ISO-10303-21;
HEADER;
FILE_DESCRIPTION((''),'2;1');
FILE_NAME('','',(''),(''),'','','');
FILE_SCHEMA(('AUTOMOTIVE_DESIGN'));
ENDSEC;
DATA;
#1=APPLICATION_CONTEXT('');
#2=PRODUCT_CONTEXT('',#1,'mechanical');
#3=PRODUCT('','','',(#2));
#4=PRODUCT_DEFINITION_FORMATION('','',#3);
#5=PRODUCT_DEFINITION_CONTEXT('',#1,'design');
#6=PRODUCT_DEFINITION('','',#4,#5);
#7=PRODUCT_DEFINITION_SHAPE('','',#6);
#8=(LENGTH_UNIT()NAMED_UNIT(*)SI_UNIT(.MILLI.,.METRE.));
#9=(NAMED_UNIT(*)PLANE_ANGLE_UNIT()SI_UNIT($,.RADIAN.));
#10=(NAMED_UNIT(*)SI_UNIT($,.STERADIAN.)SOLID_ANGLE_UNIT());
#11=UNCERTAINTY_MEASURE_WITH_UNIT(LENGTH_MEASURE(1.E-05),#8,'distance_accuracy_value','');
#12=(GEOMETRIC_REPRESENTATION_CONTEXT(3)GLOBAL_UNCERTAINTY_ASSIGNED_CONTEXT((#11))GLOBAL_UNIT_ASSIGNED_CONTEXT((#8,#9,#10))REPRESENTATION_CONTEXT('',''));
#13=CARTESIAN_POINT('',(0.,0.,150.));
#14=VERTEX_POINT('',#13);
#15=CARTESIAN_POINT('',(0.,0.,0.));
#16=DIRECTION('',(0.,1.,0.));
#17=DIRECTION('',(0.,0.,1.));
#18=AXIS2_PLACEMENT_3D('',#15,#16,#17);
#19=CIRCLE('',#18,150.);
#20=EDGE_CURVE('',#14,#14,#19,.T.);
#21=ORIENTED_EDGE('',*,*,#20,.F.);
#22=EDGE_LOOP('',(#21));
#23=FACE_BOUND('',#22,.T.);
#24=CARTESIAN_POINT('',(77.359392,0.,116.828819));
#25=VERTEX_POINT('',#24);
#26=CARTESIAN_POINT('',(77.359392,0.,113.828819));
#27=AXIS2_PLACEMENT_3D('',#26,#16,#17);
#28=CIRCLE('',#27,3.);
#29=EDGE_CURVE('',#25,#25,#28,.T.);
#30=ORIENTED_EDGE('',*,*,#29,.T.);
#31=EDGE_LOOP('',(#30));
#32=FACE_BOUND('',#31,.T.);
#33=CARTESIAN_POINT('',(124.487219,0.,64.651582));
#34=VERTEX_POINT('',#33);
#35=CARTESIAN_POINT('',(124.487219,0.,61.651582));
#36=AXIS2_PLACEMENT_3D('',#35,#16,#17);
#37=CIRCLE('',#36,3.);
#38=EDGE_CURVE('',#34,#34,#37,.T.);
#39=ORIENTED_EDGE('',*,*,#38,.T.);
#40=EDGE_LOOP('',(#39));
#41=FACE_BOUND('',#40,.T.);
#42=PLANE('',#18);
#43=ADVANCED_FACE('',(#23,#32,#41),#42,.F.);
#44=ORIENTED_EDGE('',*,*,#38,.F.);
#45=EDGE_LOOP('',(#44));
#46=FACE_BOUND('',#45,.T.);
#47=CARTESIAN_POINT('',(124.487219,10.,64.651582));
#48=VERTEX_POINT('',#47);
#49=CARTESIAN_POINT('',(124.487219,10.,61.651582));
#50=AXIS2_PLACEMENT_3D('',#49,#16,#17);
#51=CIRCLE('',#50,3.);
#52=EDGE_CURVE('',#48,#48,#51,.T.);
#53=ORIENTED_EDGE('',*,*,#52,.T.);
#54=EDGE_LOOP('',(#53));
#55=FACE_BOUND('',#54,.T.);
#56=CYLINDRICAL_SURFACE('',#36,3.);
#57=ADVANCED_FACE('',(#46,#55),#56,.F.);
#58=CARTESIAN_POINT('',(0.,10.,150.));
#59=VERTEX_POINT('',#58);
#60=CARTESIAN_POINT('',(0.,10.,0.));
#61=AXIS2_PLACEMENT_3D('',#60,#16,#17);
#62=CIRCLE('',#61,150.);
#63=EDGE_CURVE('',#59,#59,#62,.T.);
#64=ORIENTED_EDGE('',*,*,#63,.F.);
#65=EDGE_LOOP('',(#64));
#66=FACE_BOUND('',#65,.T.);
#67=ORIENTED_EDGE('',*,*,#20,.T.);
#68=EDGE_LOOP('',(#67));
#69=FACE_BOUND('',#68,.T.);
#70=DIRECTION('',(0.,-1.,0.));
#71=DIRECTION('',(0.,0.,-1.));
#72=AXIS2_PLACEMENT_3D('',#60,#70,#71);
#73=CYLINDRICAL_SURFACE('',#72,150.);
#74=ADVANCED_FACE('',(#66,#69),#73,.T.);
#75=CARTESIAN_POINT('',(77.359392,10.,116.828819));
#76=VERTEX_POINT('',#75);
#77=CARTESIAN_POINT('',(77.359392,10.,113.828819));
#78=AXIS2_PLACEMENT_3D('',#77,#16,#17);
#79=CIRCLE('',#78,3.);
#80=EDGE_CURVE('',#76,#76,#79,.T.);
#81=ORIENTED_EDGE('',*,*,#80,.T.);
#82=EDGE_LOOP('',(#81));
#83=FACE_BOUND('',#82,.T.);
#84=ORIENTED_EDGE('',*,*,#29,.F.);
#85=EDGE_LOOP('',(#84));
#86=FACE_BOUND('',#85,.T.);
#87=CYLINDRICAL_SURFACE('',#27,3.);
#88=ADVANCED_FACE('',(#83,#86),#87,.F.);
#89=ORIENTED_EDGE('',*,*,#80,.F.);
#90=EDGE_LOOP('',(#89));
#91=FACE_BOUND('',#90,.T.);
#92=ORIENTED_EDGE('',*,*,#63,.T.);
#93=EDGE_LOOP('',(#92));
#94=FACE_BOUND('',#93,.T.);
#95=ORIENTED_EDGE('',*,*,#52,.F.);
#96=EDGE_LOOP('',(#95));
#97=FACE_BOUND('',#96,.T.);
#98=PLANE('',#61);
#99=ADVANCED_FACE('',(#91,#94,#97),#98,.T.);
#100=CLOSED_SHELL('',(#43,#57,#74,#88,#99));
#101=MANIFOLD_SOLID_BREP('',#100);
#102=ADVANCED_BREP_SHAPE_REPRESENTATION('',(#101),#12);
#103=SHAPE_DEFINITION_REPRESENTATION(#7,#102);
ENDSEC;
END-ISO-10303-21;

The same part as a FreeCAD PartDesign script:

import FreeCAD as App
import Part
import Sketcher

V = App.Vector

doc = App.newDocument("Part")
body = doc.addObject("PartDesign::Body", "Body")

sketch1 = doc.addObject("Sketcher::SketchObject", "Sketch")
body.addObject(sketch1)
sketch1.AttachmentSupport = (doc.XZ_Plane, [""])
sketch1.MapMode = "FlatFace"
sketch1.addGeometry(Part.Circle(V(0, 0, 0), V(0, 0, 1), 150), False)
sketch1.addConstraint(Sketcher.Constraint("Coincident", 0, 3, -1, 1))
sketch1.addConstraint(Sketcher.Constraint("Diameter", 0, 300.0))
pad1 = doc.addObject("PartDesign::Pad", "Pad")
body.addObject(pad1)
pad1.Profile = sketch1
pad1.Length = 10
pad1.Reversed = True

sketch2 = doc.addObject("Sketcher::SketchObject", "Sketch001")
body.addObject(sketch2)
sketch2.AttachmentSupport = (doc.XZ_Plane, [""])
sketch2.MapMode = "FlatFace"
sketch2.AttachmentOffset = App.Placement(V(0, 0, -10), App.Rotation())
sketch2.addGeometry(Part.Circle(V(77.359392, 113.828819, 0), V(0, 0, 1), 3), False)
sketch2.addGeometry(Part.Circle(V(124.487219, 61.651582, 0), V(0, 0, 1), 3), False)
sketch2.addConstraint(Sketcher.Constraint("Equal", 0, 1))
sketch2.addConstraint(Sketcher.Constraint("Diameter", 0, 6.0))
sketch2.addConstraint(Sketcher.Constraint("DistanceX", -1, 1, 0, 3, 77.359392))
sketch2.addConstraint(Sketcher.Constraint("DistanceY", -1, 1, 0, 3, 113.828819))
sketch2.addConstraint(Sketcher.Constraint("DistanceX", -1, 1, 1, 3, 124.487219))
sketch2.addConstraint(Sketcher.Constraint("DistanceY", -1, 1, 1, 3, 61.651582))
pocket1 = doc.addObject("PartDesign::Pocket", "Pocket")
body.addObject(pocket1)
pocket1.Profile = sketch2
pocket1.Type = "ThroughAll"
pocket1.Reversed = True

doc.recompute()
